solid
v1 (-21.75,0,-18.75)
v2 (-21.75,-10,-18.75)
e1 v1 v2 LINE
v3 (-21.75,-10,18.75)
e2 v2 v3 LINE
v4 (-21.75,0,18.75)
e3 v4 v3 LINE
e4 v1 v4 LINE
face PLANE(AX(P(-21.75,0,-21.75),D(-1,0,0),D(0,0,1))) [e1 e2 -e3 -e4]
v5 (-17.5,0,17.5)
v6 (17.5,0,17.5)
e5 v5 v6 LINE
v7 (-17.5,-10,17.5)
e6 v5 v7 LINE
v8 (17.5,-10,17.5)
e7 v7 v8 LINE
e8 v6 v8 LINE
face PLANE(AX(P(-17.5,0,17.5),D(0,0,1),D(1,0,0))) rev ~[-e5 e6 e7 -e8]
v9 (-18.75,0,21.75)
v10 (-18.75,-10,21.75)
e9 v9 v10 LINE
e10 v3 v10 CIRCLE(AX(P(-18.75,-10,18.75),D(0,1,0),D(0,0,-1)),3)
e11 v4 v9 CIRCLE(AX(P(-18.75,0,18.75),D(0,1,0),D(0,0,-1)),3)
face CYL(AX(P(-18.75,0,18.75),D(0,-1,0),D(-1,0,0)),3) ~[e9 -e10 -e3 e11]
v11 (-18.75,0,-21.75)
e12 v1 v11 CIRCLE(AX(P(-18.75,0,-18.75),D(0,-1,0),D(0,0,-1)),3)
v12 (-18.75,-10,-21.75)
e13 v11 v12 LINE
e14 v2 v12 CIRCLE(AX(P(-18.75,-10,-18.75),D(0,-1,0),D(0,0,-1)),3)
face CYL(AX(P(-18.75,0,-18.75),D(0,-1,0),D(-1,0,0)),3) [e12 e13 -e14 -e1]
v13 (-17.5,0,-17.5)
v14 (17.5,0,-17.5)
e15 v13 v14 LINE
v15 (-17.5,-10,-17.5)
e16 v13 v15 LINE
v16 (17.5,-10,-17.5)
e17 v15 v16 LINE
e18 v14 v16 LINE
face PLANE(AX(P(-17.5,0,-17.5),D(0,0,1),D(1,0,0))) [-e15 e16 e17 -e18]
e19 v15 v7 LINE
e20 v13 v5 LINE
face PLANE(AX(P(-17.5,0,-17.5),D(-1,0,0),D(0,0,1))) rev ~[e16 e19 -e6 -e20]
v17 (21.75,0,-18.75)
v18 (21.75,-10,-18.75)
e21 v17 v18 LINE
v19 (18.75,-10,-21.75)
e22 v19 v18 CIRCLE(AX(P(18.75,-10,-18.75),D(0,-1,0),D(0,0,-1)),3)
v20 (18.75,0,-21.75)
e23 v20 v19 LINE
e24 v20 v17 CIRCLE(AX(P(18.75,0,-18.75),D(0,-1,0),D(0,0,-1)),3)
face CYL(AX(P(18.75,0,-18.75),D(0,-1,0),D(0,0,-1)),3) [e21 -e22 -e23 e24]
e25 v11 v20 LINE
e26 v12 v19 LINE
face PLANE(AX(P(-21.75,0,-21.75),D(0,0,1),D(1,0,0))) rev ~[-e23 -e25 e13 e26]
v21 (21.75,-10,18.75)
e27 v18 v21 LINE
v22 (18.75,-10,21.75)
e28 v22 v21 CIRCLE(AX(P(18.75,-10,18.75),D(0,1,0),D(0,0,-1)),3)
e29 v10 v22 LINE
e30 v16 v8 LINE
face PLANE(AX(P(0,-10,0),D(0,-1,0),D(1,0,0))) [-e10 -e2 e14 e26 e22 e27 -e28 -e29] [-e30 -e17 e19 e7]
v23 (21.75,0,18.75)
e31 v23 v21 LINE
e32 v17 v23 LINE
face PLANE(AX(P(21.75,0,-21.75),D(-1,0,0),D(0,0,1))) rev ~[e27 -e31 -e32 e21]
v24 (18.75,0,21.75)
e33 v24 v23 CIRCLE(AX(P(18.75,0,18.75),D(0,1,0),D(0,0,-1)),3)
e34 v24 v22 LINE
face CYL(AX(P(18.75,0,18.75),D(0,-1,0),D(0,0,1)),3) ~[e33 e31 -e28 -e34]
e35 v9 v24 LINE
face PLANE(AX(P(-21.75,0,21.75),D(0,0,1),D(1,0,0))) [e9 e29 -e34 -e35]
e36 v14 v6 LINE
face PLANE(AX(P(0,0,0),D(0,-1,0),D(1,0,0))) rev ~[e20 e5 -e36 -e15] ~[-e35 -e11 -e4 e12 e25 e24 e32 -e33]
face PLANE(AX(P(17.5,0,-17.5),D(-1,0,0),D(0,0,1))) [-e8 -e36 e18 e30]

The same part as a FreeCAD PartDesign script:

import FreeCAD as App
import Part
import Sketcher

V = App.Vector


def edges_at(feature, points):
    """Names of the edges that pass closest to the given points."""
    edges = feature.Shape.Edges
    near = lambda p: min(range(len(edges)), key=lambda i: edges[i].distToShape(Part.Vertex(*p))[0])
    return sorted({f"Edge{near(p) + 1}" for p in points})

doc = App.newDocument("Part")
params = doc.addObject("Spreadsheet::Sheet", "Params")
for row, (alias, value) in enumerate([
    ("sketch1_width", "35 mm"),
    ("sketch1_width2", "43.5 mm"),
    ("pad1_length", "10 mm"),
    ("fillet_radius", "3 mm"),
], start=1):
    params.set(f"A{row}", alias)
    params.set(f"B{row}", "=" + value)
    params.setAlias(f"B{row}", alias)

body = doc.addObject("PartDesign::Body", "Body")

# Sketch on XZ plane
sketch1 = doc.addObject("Sketcher::SketchObject", "Sketch")
body.addObject(sketch1)
sketch1.AttachmentSupport = (doc.XZ_Plane, [""])
sketch1.MapMode = "FlatFace"
sketch1.addGeometry([
    Part.LineSegment(V(-22, 22, 0), V(-22, -22, 0)),  # 0
    Part.LineSegment(V(-22, -22, 0), V(22, -22, 0)),  # 1
    Part.LineSegment(V(22, -22, 0), V(22, 22, 0)),  # 2
    Part.LineSegment(V(22, 22, 0), V(-22, 22, 0)),  # 3
    Part.LineSegment(V(18, -18, 0), V(-18, -18, 0)),  # 4
    Part.LineSegment(V(-18, -18, 0), V(-18, 18, 0)),  # 5
    Part.LineSegment(V(-18, 18, 0), V(18, 18, 0)),  # 6
    Part.LineSegment(V(18, 18, 0), V(18, -18, 0)),  # 7
], False)
sketch1.addConstraint([
    Sketcher.Constraint("Coincident", 0, 2, 1, 1),
    Sketcher.Constraint("Coincident", 1, 2, 2, 1),
    Sketcher.Constraint("Coincident", 2, 2, 3, 1),
    Sketcher.Constraint("Coincident", 3, 2, 0, 1),
    Sketcher.Constraint("Coincident", 4, 2, 5, 1),
    Sketcher.Constraint("Coincident", 5, 2, 6, 1),
    Sketcher.Constraint("Coincident", 6, 2, 7, 1),
    Sketcher.Constraint("Coincident", 7, 2, 4, 1),
    Sketcher.Constraint("Vertical", 0),
    Sketcher.Constraint("Horizontal", 1),
    Sketcher.Constraint("Vertical", 2),
    Sketcher.Constraint("Horizontal", 3),
    Sketcher.Constraint("Horizontal", 4),
    Sketcher.Constraint("Vertical", 5),
    Sketcher.Constraint("Horizontal", 6),
    Sketcher.Constraint("Vertical", 7),
    Sketcher.Constraint("Symmetric", 0, 2, 2, 2, -1, 1),
    Sketcher.Constraint("Symmetric", 4, 2, 6, 2, -1, 1),
    Sketcher.Constraint("Equal", 3, 0),
    Sketcher.Constraint("Equal", 6, 5),
    Sketcher.Constraint("DistanceX", 4, 2, 4, 1, 35.0),
    Sketcher.Constraint("DistanceX", 1, 1, 1, 2, 43.5),
])
sketch1.setExpression("Constraints[20]", "Params.sketch1_width")
sketch1.setExpression("Constraints[21]", "Params.sketch1_width2")
pad1 = doc.addObject("PartDesign::Pad", "Pad")
body.addObject(pad1)
pad1.Profile = sketch1
pad1.setExpression("Length", "Params.pad1_length")
doc.recompute()

fillet = doc.addObject("PartDesign::Fillet", "Fillet")
body.addObject(fillet)
fillet.Base = (pad1, edges_at(pad1, [
    (-21.75, -5, 21.75),
    (21.75, -5, 21.75),
    (21.75, -5, -21.75),
    (-21.75, -5, -21.75),
]))
fillet.setExpression("Radius", "Params.fillet_radius")

doc.recompute()
